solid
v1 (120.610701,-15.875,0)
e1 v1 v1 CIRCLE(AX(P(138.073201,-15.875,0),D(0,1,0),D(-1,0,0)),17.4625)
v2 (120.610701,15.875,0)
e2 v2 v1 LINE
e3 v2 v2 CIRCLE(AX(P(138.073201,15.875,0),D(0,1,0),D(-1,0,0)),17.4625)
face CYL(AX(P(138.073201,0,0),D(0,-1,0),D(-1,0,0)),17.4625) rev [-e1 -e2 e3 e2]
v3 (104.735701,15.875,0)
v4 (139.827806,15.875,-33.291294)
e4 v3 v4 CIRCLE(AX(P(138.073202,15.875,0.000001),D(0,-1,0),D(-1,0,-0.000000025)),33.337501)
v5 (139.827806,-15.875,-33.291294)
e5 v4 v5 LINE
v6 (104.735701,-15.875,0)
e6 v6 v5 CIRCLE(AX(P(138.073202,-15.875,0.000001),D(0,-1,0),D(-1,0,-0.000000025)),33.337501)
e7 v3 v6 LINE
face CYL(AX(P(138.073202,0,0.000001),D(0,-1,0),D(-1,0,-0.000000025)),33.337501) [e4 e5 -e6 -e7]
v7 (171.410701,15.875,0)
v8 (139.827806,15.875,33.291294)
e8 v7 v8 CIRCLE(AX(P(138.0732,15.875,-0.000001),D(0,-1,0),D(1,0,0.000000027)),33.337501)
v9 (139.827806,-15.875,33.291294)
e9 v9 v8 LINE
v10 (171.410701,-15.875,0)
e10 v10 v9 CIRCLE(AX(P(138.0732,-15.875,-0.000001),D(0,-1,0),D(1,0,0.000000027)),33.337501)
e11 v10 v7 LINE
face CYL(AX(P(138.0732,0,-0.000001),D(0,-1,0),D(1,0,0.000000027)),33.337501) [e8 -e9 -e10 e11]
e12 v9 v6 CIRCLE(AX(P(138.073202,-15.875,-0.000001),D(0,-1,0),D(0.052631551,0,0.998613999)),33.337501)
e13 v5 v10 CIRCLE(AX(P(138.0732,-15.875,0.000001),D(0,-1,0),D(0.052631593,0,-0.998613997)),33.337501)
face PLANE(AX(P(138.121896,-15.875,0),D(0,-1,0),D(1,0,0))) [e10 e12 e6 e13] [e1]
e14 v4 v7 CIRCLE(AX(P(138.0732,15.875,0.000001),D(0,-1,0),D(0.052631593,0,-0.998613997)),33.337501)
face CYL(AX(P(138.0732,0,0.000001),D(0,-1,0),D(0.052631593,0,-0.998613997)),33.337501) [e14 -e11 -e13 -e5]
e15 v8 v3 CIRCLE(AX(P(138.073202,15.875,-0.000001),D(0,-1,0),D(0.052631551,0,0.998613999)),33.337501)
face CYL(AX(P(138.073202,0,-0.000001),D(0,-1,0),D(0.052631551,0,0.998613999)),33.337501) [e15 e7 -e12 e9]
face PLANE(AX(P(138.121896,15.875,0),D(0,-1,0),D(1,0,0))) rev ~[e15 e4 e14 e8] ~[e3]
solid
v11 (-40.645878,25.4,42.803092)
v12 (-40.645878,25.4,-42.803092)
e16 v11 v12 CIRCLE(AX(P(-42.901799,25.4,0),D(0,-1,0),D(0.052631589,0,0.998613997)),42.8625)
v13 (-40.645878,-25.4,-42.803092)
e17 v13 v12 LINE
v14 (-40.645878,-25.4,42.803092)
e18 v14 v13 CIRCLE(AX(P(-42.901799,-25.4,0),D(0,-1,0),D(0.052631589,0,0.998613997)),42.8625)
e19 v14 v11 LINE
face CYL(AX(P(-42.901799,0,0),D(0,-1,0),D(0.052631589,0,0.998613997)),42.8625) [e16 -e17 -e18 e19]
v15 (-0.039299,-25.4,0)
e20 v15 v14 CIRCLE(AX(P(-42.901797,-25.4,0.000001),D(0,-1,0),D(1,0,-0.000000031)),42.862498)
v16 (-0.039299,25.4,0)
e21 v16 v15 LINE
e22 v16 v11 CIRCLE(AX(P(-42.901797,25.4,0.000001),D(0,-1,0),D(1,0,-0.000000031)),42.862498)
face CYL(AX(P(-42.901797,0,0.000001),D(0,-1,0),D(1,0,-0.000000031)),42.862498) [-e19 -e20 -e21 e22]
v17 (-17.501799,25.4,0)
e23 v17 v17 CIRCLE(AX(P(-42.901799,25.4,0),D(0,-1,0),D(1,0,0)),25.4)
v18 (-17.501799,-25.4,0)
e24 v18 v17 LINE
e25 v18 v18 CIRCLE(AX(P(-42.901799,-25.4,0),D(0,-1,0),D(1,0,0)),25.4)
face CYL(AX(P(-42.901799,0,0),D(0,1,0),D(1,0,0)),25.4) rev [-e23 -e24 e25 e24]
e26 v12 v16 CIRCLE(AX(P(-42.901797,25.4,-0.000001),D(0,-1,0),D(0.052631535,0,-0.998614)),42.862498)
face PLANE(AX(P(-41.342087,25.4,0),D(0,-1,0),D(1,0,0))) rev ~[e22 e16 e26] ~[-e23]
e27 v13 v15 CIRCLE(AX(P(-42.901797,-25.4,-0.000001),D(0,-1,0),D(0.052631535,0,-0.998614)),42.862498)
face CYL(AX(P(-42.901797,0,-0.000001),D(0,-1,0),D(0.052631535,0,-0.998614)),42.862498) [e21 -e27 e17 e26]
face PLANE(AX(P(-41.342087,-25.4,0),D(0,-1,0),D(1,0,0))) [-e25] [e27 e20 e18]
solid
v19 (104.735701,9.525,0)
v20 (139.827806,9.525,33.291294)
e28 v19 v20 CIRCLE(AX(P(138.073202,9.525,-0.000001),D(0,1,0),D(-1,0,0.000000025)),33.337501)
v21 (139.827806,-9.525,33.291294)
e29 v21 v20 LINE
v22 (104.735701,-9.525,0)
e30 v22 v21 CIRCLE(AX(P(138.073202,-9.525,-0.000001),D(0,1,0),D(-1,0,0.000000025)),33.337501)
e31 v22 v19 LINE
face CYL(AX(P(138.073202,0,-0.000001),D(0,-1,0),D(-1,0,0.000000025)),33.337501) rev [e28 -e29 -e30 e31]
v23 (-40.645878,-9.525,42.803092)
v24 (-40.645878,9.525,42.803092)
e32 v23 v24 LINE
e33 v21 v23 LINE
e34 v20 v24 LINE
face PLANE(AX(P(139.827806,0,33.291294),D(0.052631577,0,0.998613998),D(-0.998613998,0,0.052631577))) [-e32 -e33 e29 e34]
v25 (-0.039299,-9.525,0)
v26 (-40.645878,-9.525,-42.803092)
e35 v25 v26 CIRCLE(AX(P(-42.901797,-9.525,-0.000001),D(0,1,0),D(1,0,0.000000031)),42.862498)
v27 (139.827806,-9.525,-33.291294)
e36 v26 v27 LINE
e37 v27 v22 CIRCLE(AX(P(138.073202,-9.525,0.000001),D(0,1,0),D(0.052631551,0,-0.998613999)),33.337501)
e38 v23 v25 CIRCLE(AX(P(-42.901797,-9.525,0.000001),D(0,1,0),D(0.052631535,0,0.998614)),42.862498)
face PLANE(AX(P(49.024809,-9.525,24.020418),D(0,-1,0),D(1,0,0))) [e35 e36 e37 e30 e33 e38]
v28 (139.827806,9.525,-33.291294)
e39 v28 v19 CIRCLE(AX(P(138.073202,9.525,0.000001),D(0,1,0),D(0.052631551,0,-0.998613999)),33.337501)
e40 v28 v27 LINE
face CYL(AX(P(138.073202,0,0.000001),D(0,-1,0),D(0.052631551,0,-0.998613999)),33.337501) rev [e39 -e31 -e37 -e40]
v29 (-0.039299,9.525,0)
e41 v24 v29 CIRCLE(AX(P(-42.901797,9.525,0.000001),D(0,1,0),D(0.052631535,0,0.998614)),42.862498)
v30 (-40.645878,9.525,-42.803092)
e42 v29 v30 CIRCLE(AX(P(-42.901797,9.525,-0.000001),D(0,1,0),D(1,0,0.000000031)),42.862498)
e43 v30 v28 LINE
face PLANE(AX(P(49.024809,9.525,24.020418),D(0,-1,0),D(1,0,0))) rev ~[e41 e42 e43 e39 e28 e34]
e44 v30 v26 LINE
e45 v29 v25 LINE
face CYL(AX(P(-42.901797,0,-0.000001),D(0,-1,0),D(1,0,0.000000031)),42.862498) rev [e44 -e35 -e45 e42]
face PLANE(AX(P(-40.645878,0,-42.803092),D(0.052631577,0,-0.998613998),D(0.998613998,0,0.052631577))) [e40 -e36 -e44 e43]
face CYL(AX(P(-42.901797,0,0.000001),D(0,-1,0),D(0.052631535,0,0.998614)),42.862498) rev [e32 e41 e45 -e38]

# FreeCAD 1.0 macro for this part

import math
import FreeCAD as App
import Part
import Sketcher

V = App.Vector
Q = App.Units.Quantity

doc = App.newDocument("Part")
body = doc.addObject("PartDesign::Body", "Body")

# Sketch on XZ plane
sketch1 = doc.addObject("Sketcher::SketchObject", "Sketch")
body.addObject(sketch1)
sketch1.AttachmentSupport = (doc.XZ_Plane, [""])
sketch1.MapMode = "FlatFace"
sketch1.addGeometry([
    Part.ArcOfCircle(Part.Circle(V(-43, 0, 0), V(0, 0, 1), 43), math.radians(-87), math.radians(0)),
    Part.ArcOfCircle(Part.Circle(V(-43, 0, 0), V(0, 0, 1), 43), math.radians(0), math.radians(87)),
    Part.ArcOfCircle(Part.Circle(V(-43, 0, 0), V(0, 0, 1), 43), math.radians(87), math.radians(273)),
    Part.Circle(V(-43, 0, 0), V(0, 0, 1), 25),
], False)
sketch1.addConstraint([
    Sketcher.Constraint("Tangent", 0, 2, 1, 1),
    Sketcher.Constraint("Tangent", 1, 2, 2, 1),
    Sketcher.Constraint("Tangent", 2, 2, 0, 1),
    Sketcher.Constraint("Coincident", 3, 3, 0, 3),
    Sketcher.Constraint("Symmetric", 1, 2, 2, 2, -1),
    Sketcher.Constraint("PointOnObject", 0, 2, -1),
    Sketcher.Constraint("Diameter", 3, Q("2 in")),
    Sketcher.Constraint("Radius", 0, Q("1.6874999 in")),
    Sketcher.Constraint("DistanceX", 2, 3, -1, 1, 42.901799),
    Sketcher.Constraint("DistanceX", 2, 2, -1, 1, 40.645878),
])
pad1 = doc.addObject("PartDesign::Pad", "Pad")
body.addObject(pad1)
pad1.Profile = sketch1
pad1.Length = Q("2 in")
pad1.Midplane = True
body2 = doc.addObject("PartDesign::Body", "Body001")

# Sketch on XZ plane
sketch2 = doc.addObject("Sketcher::SketchObject", "Sketch001")
body2.addObject(sketch2)
sketch2.AttachmentSupport = (doc.getObject("XZ_Plane001"), [""])
sketch2.MapMode = "FlatFace"
sketch2.addGeometry([
    Part.ArcOfCircle(Part.Circle(V(138, 0, 0), V(0, 0, 1), 33), math.radians(87), math.radians(180)),  # 0
    Part.ArcOfCircle(Part.Circle(V(138, 0, 0), V(0, 0, 1), 33), math.radians(-180), math.radians(-87)),  # 1
    Part.ArcOfCircle(Part.Circle(V(138, 0, 0), V(0, 0, 1), 33), math.radians(-87), math.radians(0)),  # 2
    Part.ArcOfCircle(Part.Circle(V(138, 0, 0), V(0, 0, 1), 33), math.radians(0), math.radians(87)),  # 3
    Part.Circle(V(138, 0, 0), V(0, 0, 1), 17),  # 4
], False)
sketch2.addConstraint([
    Sketcher.Constraint("Tangent", 0, 2, 1, 1),
    Sketcher.Constraint("Tangent", 1, 2, 2, 1),
    Sketcher.Constraint("Tangent", 2, 2, 3, 1),
    Sketcher.Constraint("Tangent", 3, 2, 0, 1),
    Sketcher.Constraint("Coincident", 4, 3, 0, 3),
    Sketcher.Constraint("Equal", 0, 1),
    Sketcher.Constraint("Symmetric", 1, 2, 3, 2, -1),
    Sketcher.Constraint("PointOnObject", 0, 2, -1),
    Sketcher.Constraint("PointOnObject", 2, 2, -1),
    Sketcher.Constraint("Diameter", 4, Q("1.375 in")),
    Sketcher.Constraint("Radius", 0, Q("1.3125 in")),
    Sketcher.Constraint("DistanceX", -1, 1, 0, 3, 138.073202),
    Sketcher.Constraint("DistanceX", -1, 1, 1, 2, 139.827806),
])
pad2 = doc.addObject("PartDesign::Pad", "Pad001")
body2.addObject(pad2)
pad2.Profile = sketch2
pad2.Length = Q("1.25 in")
pad2.Midplane = True
body3 = doc.addObject("PartDesign::Body", "Body002")

# Sketch on XZ plane
sketch3 = doc.addObject("Sketcher::SketchObject", "Sketch002")
body3.addObject(sketch3)
sketch3.AttachmentSupport = (doc.getObject("XZ_Plane002"), [""])
sketch3.MapMode = "FlatFace"
sketch3.addGeometry([
    Part.ArcOfCircle(Part.Circle(V(-43, 0, 0), V(0, 0, 1), 43), math.radians(0), math.radians(87)),  # 0
    Part.ArcOfCircle(Part.Circle(V(-43, 0, 0), V(0, 0, 1), 43), math.radians(-87), math.radians(0)),  # 1
    Part.LineSegment(V(-41, -43, 0), V(140, -33, 0)),  # 2
    Part.ArcOfCircle(Part.Circle(V(138, 0, 0), V(0, 0, 1), 33), math.radians(-180), math.radians(-87)),  # 3
    Part.ArcOfCircle(Part.Circle(V(138, 0, 0), V(0, 0, 1), 33), math.radians(87), math.radians(180)),  # 4
    Part.LineSegment(V(140, 33, 0), V(-41, 43, 0)),  # 5
], False)
sketch3.addConstraint([
    Sketcher.Constraint("Tangent", 0, 1, 1, 2),
    Sketcher.Constraint("Tangent", 1, 1, 2, 1),
    Sketcher.Constraint("Tangent", 2, 2, 3, 2),
    Sketcher.Constraint("Tangent", 3, 1, 4, 2),
    Sketcher.Constraint("Tangent", 4, 1, 5, 1),
    Sketcher.Constraint("Tangent", 5, 2, 0, 2),
    Sketcher.Constraint("Equal", 0, 1),
    Sketcher.Constraint("Equal", 3, 4),
    Sketcher.Constraint("Symmetric", 2, 2, 4, 1, -1),
    Sketcher.Constraint("PointOnObject", 0, 1, -1),
    Sketcher.Constraint("PointOnObject", 3, 1, -1),
    Sketcher.Constraint("Radius", 0, Q("1.6874999 in")),
    Sketcher.Constraint("Radius", 3, Q("1.3125 in")),
    Sketcher.Constraint("DistanceX", 0, 3, 3, 3, Q("7.1249999 in")),
    Sketcher.Constraint("DistanceX", -1, 1, 3, 3, 138.073202),
])
pad3 = doc.addObject("PartDesign::Pad", "Pad002")
body3.addObject(pad3)
pad3.Profile = sketch3
pad3.Length = Q("0.75 in")
pad3.Midplane = True

doc.recompute()
